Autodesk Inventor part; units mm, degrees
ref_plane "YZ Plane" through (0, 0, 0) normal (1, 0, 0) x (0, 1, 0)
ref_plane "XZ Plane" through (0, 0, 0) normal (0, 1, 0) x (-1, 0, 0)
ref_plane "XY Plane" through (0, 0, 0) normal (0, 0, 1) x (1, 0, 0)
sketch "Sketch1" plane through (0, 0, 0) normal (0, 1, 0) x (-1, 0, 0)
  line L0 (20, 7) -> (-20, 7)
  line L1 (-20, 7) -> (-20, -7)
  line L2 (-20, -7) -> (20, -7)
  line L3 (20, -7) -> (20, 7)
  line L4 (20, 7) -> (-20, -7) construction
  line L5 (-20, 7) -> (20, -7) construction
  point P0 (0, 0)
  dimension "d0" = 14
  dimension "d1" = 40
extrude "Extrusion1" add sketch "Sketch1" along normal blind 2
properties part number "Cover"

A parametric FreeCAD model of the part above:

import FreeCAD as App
import Part
import Sketcher
Q = App.Units.Quantity

doc = App.newDocument("Part")
body = doc.addObject("PartDesign::Body", "Body")

# Sketch on XZ plane
sketch1 = body.newObject("Sketcher::SketchObject", "Sketch")
sketch1.AttachmentSupport = (doc.getObject("XZ_Plane"), [""])
sketch1.MapMode = "FlatFace"
sketch1.addGeometry([
    Part.LineSegment(App.Vector(-20, -7, 0), App.Vector(-20, 7, 0)),
    Part.LineSegment(App.Vector(-20, 7, 0), App.Vector(20, 7, 0)),
    Part.LineSegment(App.Vector(20, 7, 0), App.Vector(20, -7, 0)),
    Part.LineSegment(App.Vector(20, -7, 0), App.Vector(-20, -7, 0)),
], False)
sketch1.addConstraint([
    Sketcher.Constraint("Coincident", 0, 2, 1, 1),
    Sketcher.Constraint("Coincident", 1, 2, 2, 1),
    Sketcher.Constraint("Coincident", 2, 2, 3, 1),
    Sketcher.Constraint("Coincident", 3, 2, 0, 1),
    Sketcher.Constraint("Vertical", 0),
    Sketcher.Constraint("Horizontal", 1),
    Sketcher.Constraint("Vertical", 2),
    Sketcher.Constraint("Horizontal", 3),
    Sketcher.Constraint("Symmetric", 0, 2, 2, 2, -1, 1),
    Sketcher.Constraint("DistanceX", 1, 1, 1, 2, Q("40 mm")),
    Sketcher.Constraint("DistanceY", 0, 1, 0, 2, Q("14 mm")),
])
pad1 = body.newObject("PartDesign::Pad", "Pad")
pad1.Profile = sketch1
pad1.Length = 2
pad1.Reversed = True

doc.recompute()
